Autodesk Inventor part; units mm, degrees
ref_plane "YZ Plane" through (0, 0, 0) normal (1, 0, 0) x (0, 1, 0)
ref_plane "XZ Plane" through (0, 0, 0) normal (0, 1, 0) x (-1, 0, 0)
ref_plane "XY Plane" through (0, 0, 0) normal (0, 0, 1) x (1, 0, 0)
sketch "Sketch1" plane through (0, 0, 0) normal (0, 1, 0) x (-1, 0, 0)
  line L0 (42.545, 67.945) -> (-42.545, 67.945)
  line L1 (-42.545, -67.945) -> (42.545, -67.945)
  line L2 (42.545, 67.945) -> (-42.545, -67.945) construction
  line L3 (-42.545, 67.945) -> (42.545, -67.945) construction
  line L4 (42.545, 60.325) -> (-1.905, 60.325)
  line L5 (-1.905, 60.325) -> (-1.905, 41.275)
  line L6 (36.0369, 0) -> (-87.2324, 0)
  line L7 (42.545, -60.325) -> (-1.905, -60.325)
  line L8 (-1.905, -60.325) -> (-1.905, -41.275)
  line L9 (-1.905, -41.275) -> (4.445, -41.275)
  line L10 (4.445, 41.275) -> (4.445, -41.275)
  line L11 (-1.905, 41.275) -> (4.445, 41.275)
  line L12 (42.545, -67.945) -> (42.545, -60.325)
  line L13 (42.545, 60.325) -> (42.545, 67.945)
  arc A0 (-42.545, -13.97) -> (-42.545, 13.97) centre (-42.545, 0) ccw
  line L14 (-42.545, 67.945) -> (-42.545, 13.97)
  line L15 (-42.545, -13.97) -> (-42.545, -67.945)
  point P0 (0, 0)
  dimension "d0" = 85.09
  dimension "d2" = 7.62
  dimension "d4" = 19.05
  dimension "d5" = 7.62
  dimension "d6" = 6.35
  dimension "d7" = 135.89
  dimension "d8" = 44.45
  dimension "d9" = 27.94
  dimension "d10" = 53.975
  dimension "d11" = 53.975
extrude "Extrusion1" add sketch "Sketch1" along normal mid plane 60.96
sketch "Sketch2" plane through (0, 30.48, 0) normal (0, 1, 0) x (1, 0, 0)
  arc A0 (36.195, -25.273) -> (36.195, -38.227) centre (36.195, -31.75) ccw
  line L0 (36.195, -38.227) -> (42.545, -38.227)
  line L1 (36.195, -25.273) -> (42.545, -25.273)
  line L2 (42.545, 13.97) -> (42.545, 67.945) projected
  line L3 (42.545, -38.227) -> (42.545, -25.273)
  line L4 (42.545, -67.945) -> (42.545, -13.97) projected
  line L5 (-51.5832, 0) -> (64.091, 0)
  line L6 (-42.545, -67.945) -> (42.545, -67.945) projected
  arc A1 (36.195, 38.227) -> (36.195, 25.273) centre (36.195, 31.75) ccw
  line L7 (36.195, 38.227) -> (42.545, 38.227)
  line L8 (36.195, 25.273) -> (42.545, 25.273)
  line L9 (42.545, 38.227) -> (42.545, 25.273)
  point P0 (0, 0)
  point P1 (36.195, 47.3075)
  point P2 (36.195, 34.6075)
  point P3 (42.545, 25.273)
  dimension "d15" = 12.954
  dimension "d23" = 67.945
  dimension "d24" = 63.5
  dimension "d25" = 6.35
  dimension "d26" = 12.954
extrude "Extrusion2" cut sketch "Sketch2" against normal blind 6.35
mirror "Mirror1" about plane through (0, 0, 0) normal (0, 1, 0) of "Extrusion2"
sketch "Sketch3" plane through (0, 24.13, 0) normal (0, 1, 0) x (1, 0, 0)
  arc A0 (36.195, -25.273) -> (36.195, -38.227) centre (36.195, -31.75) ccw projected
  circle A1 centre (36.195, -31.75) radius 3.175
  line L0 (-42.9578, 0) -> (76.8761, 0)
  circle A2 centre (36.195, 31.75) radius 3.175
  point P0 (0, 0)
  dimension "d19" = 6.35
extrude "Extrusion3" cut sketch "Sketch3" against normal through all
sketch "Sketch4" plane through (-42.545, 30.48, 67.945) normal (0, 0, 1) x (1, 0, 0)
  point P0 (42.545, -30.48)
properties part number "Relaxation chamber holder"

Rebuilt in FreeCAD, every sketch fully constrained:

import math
import FreeCAD as App
import Part
import Sketcher
from FreeCAD import Vector
Q = App.Units.Quantity

doc = App.newDocument("Part")
body = doc.addObject("PartDesign::Body", "Body")

# Sketch on XZ plane
sketch1 = doc.addObject("Sketcher::SketchObject", "Sketch")
body.addObject(sketch1)
sketch1.AttachmentSupport = (doc.XZ_Plane, [""])
sketch1.MapMode = "FlatFace"
sketch1.addGeometry([
    Part.LineSegment(Vector(-42.545, 60.325, 0), Vector(-42.545, 67.945, 0)),  # 0
    Part.LineSegment(Vector(-42.545, 67.945, 0), Vector(42.545, 67.945, 0)),  # 1
    Part.LineSegment(Vector(42.545, 67.945, 0), Vector(42.545, 13.97, 0)),  # 2
    Part.ArcOfCircle(Part.Circle(Vector(42.545, 0, 0), Vector(0, 0, 1), 13.97), math.radians(90), math.radians(270)),  # 3
    Part.LineSegment(Vector(42.545, -13.97, 0), Vector(42.545, -67.945, 0)),  # 4
    Part.LineSegment(Vector(42.545, -67.945, 0), Vector(-42.545, -67.945, 0)),  # 5
    Part.LineSegment(Vector(-42.545, -67.945, 0), Vector(-42.545, -60.325, 0)),  # 6
    Part.LineSegment(Vector(-42.545, -60.325, 0), Vector(1.905, -60.325, 0)),  # 7
    Part.LineSegment(Vector(1.905, -60.325, 0), Vector(1.905, -41.275, 0)),  # 8
    Part.LineSegment(Vector(1.905, -41.275, 0), Vector(-4.445, -41.275, 0)),  # 9
    Part.LineSegment(Vector(-4.445, -41.275, 0), Vector(-4.445, 41.275, 0)),  # 10
    Part.LineSegment(Vector(-4.445, 41.275, 0), Vector(1.905, 41.275, 0)),  # 11
    Part.LineSegment(Vector(1.905, 41.275, 0), Vector(1.905, 60.325, 0)),  # 12
    Part.LineSegment(Vector(1.905, 60.325, 0), Vector(-42.545, 60.325, 0)),  # 13
], False)
sketch1.addConstraint([
    Sketcher.Constraint("Coincident", 0, 2, 1, 1),
    Sketcher.Constraint("Coincident", 1, 2, 2, 1),
    Sketcher.Constraint("Coincident", 2, 2, 3, 1),
    Sketcher.Constraint("Coincident", 3, 2, 4, 1),
    Sketcher.Constraint("Coincident", 4, 2, 5, 1),
    Sketcher.Constraint("Coincident", 5, 2, 6, 1),
    Sketcher.Constraint("Coincident", 6, 2, 7, 1),
    Sketcher.Constraint("Coincident", 7, 2, 8, 1),
    Sketcher.Constraint("Coincident", 8, 2, 9, 1),
    Sketcher.Constraint("Coincident", 9, 2, 10, 1),
    Sketcher.Constraint("Coincident", 10, 2, 11, 1),
    Sketcher.Constraint("Coincident", 11, 2, 12, 1),
    Sketcher.Constraint("Coincident", 12, 2, 13, 1),
    Sketcher.Constraint("Coincident", 13, 2, 0, 1),
    Sketcher.Constraint("Vertical", 0),
    Sketcher.Constraint("Horizontal", 1),
    Sketcher.Constraint("Vertical", 2),
    Sketcher.Constraint("Vertical", 4),
    Sketcher.Constraint("Horizontal", 5),
    Sketcher.Constraint("Vertical", 6),
    Sketcher.Constraint("Horizontal", 7),
    Sketcher.Constraint("Vertical", 8),
    Sketcher.Constraint("Horizontal", 9),
    Sketcher.Constraint("Vertical", 10),
    Sketcher.Constraint("Horizontal", 11),
    Sketcher.Constraint("Vertical", 12),
    Sketcher.Constraint("Horizontal", 13),
    Sketcher.Constraint("Symmetric", 0, 2, 4, 2, -1, 1),
    Sketcher.Constraint("Symmetric", 2, 2, 3, 2, -1),
    Sketcher.Constraint("Symmetric", 8, 2, 11, 2, -1),
    Sketcher.Constraint("Symmetric", 6, 2, 13, 2, -1),
    Sketcher.Constraint("Vertical", 3, 3, 1, 2),
    Sketcher.Constraint("Radius", 3, Q("0.55 in")),
    Sketcher.Constraint("DistanceY", 0, 1, 0, 2, Q("0.3 in")),
    Sketcher.Constraint("DistanceX", 1, 1, 1, 2, Q("3.35 in")),
    Sketcher.Constraint("DistanceX", 7, 1, 7, 2, Q("1.75 in")),
    Sketcher.Constraint("DistanceX", 9, 2, 9, 1, Q("0.25 in")),
    Sketcher.Constraint("DistanceY", 8, 1, 8, 2, Q("0.75 in")),
    Sketcher.Constraint("DistanceY", 2, 2, 2, 1, Q("2.125 in")),
])
pad1 = doc.addObject("PartDesign::Pad", "Pad")
body.addObject(pad1)
pad1.Profile = sketch1
pad1.Length = Q("2.4 in")
pad1.Midplane = True

# Sketch on XZ plane
sketch2 = doc.addObject("Sketcher::SketchObject", "Sketch001")
body.addObject(sketch2)
sketch2.AttachmentSupport = (doc.XZ_Plane, [""])
sketch2.MapMode = "FlatFace"
sketch2.AttachmentOffset = App.Placement(Vector(0, 0, -1.2 * 25.4), App.Rotation())
sketch2.addGeometry([
    Part.LineSegment(Vector(42.545, 25.273, 0), Vector(36.195, 25.273, 0)),  # 0
    Part.ArcOfCircle(Part.Circle(Vector(36.195, 31.75, 0), Vector(0, 0, 1), 6.477), math.radians(90), math.radians(270)),  # 1
    Part.LineSegment(Vector(36.195, 38.227, 0), Vector(42.545, 38.227, 0)),  # 2
    Part.LineSegment(Vector(42.545, 38.227, 0), Vector(42.545, 25.273, 0)),  # 3
    Part.LineSegment(Vector(36.195, -25.273, 0), Vector(42.545, -25.273, 0)),  # 4
    Part.LineSegment(Vector(42.545, -25.273, 0), Vector(42.545, -38.227, 0)),  # 5
    Part.LineSegment(Vector(42.545, -38.227, 0), Vector(36.195, -38.227, 0)),  # 6
    Part.ArcOfCircle(Part.Circle(Vector(36.195, -31.75, 0), Vector(0, 0, 1), 6.477), math.radians(90), math.radians(270)),  # 7
], False)
sketch2.addConstraint([
    Sketcher.Constraint("Tangent", 0, 2, 1, 2),
    Sketcher.Constraint("Tangent", 1, 1, 2, 1),
    Sketcher.Constraint("Coincident", 2, 2, 3, 1),
    Sketcher.Constraint("Coincident", 3, 2, 0, 1),
    Sketcher.Constraint("Coincident", 4, 2, 5, 1),
    Sketcher.Constraint("Coincident", 5, 2, 6, 1),
    Sketcher.Constraint("Tangent", 6, 2, 7, 2),
    Sketcher.Constraint("Tangent", 7, 1, 4, 1),
    Sketcher.Constraint("Horizontal", 0),
    Sketcher.Constraint("Horizontal", 2),
    Sketcher.Constraint("Vertical", 3),
    Sketcher.Constraint("Horizontal", 4),
    Sketcher.Constraint("Vertical", 5),
    Sketcher.Constraint("Horizontal", 6),
    Sketcher.Constraint("Equal", 1, 7),
    Sketcher.Constraint("Symmetric", 1, 3, 7, 3, -1),
    Sketcher.Constraint("Vertical", 3, 2, 4, 2),
    Sketcher.Constraint("Radius", 1, Q("0.255 in")),
    Sketcher.Constraint("DistanceX", 0, 2, 0, 1, Q("0.25 in")),
    Sketcher.Constraint("DistanceY", 7, 3, 1, 3, Q("2.5 in")),
    Sketcher.Constraint("DistanceX", -1, 1, 1, 3, Q("1.425 in")),
])
pocket1 = doc.addObject("PartDesign::Pocket", "Pocket")
body.addObject(pocket1)
pocket1.Profile = sketch2
pocket1.Length = Q("0.25 in")
pocket1.Reversed = True
doc.recompute()

mirrored = doc.addObject("PartDesign::Mirrored", "Mirrored")
body.addObject(mirrored)
mirrored.Originals = [pocket1]
mirrored.MirrorPlane = (doc.XZ_Plane, [""])
body.Tip = mirrored

# Sketch on XZ plane
sketch3 = doc.addObject("Sketcher::SketchObject", "Sketch002")
body.addObject(sketch3)
sketch3.AttachmentSupport = (doc.XZ_Plane, [""])
sketch3.MapMode = "FlatFace"
sketch3.AttachmentOffset = App.Placement(Vector(0, 0, -0.95 * 25.4), App.Rotation())
sketch3.addGeometry([
    Part.Circle(Vector(36.195, 31.75, 0), Vector(0, 0, 1), 3.175),
    Part.Circle(Vector(36.195, -31.75, 0), Vector(0, 0, 1), 3.175),
], False)
sketch3.addConstraint([
    Sketcher.Constraint("Equal", 0, 1),
    Sketcher.Constraint("Symmetric", 0, 3, 1, 3, -1),
    Sketcher.Constraint("Diameter", 0, Q("0.25 in")),
    Sketcher.Constraint("DistanceY", 1, 3, 0, 3, Q("2.5 in")),
    Sketcher.Constraint("DistanceX", -1, 1, 0, 3, Q("1.425 in")),
])
pocket2 = doc.addObject("PartDesign::Pocket", "Pocket001")
body.addObject(pocket2)
pocket2.Profile = sketch3
pocket2.Type = "ThroughAll"
pocket2.Reversed = True

doc.recompute()
